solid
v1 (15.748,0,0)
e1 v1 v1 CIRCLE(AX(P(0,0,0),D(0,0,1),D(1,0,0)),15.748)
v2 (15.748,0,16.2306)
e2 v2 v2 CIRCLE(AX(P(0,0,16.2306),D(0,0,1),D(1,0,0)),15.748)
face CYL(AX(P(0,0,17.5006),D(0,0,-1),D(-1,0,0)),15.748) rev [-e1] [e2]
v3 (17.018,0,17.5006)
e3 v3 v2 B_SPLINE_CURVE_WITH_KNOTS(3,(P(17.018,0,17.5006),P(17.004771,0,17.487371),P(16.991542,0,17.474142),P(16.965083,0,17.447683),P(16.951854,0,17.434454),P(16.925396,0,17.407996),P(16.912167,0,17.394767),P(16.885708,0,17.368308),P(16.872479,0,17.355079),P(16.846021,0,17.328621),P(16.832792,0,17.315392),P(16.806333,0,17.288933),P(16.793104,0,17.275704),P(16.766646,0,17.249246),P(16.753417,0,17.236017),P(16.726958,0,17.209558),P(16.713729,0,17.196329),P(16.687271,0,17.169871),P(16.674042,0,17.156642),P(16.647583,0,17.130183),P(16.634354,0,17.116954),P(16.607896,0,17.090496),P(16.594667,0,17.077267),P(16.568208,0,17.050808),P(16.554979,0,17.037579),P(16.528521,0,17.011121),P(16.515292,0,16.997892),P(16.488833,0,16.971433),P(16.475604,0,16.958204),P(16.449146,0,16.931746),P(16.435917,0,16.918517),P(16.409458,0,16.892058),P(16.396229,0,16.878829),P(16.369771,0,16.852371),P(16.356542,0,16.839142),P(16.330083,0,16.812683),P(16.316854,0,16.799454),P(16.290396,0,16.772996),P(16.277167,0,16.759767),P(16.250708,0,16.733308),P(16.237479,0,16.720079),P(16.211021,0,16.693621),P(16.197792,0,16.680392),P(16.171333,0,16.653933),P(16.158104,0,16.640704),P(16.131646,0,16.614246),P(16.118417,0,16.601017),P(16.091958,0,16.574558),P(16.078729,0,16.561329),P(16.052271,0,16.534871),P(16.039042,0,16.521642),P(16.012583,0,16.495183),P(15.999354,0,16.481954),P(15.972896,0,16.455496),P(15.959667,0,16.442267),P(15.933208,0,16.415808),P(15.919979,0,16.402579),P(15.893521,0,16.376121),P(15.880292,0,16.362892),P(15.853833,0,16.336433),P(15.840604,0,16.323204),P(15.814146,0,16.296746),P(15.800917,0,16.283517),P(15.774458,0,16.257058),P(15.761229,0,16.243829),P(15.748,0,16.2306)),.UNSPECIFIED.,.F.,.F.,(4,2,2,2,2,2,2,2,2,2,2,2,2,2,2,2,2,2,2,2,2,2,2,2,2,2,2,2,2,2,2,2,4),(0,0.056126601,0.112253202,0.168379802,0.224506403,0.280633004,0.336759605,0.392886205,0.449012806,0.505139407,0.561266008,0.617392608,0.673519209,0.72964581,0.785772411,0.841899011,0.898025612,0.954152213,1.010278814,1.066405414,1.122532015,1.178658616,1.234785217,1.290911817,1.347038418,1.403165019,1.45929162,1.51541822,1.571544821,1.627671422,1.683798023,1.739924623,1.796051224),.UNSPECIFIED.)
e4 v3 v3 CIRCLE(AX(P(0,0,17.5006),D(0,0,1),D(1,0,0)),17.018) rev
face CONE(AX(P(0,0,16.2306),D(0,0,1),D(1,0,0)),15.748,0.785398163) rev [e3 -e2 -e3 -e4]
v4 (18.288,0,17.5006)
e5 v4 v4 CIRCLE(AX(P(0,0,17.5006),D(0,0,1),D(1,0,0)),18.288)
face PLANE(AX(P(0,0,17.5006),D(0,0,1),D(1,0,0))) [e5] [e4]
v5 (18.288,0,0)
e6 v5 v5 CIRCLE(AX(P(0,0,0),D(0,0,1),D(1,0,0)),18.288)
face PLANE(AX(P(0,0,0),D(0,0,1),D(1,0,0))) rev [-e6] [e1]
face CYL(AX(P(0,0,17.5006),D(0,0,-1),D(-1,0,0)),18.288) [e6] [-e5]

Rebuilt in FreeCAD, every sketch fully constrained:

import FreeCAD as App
import Part
import Sketcher
Q = App.Units.Quantity


def edges_at(feature, points):
    """Names of the edges that pass closest to the given points."""
    edges = feature.Shape.Edges
    near = lambda p: min(range(len(edges)), key=lambda i: edges[i].distToShape(Part.Vertex(*p))[0])
    return sorted({f"Edge{near(p) + 1}" for p in points})

doc = App.newDocument("Part")
body = doc.addObject("PartDesign::Body", "Body")

sketch1 = body.newObject("Sketcher::SketchObject", "Sketch")
sketch1.AttachmentSupport = (doc.getObject("XY_Plane"), [""])
sketch1.MapMode = "FlatFace"
sketch1.addGeometry([
    Part.Circle(App.Vector(0, 0, 0), App.Vector(0, 0, 1), 18.288),
    Part.Circle(App.Vector(0, 0, 0), App.Vector(0, 0, 1), 15.748),
], False)
sketch1.addConstraint([
    Sketcher.Constraint("Coincident", 0, 3, -1, 1),
    Sketcher.Constraint("Coincident", 1, 3, -1, 1),
    Sketcher.Constraint("Diameter", 0, Q("1.44 in")),
    Sketcher.Constraint("Diameter", 1, Q("1.24 in")),
])
pad1 = body.newObject("PartDesign::Pad", "Pad")
pad1.Profile = sketch1
pad1.Length = Q("0.689 in")
doc.recompute()

chamfer = body.newObject("PartDesign::Chamfer", "Chamfer")
chamfer.Base = (pad1, edges_at(pad1, [(-15.748, 0, 17.501)]))
chamfer.Size = Q("0.05 in")

doc.recompute()
